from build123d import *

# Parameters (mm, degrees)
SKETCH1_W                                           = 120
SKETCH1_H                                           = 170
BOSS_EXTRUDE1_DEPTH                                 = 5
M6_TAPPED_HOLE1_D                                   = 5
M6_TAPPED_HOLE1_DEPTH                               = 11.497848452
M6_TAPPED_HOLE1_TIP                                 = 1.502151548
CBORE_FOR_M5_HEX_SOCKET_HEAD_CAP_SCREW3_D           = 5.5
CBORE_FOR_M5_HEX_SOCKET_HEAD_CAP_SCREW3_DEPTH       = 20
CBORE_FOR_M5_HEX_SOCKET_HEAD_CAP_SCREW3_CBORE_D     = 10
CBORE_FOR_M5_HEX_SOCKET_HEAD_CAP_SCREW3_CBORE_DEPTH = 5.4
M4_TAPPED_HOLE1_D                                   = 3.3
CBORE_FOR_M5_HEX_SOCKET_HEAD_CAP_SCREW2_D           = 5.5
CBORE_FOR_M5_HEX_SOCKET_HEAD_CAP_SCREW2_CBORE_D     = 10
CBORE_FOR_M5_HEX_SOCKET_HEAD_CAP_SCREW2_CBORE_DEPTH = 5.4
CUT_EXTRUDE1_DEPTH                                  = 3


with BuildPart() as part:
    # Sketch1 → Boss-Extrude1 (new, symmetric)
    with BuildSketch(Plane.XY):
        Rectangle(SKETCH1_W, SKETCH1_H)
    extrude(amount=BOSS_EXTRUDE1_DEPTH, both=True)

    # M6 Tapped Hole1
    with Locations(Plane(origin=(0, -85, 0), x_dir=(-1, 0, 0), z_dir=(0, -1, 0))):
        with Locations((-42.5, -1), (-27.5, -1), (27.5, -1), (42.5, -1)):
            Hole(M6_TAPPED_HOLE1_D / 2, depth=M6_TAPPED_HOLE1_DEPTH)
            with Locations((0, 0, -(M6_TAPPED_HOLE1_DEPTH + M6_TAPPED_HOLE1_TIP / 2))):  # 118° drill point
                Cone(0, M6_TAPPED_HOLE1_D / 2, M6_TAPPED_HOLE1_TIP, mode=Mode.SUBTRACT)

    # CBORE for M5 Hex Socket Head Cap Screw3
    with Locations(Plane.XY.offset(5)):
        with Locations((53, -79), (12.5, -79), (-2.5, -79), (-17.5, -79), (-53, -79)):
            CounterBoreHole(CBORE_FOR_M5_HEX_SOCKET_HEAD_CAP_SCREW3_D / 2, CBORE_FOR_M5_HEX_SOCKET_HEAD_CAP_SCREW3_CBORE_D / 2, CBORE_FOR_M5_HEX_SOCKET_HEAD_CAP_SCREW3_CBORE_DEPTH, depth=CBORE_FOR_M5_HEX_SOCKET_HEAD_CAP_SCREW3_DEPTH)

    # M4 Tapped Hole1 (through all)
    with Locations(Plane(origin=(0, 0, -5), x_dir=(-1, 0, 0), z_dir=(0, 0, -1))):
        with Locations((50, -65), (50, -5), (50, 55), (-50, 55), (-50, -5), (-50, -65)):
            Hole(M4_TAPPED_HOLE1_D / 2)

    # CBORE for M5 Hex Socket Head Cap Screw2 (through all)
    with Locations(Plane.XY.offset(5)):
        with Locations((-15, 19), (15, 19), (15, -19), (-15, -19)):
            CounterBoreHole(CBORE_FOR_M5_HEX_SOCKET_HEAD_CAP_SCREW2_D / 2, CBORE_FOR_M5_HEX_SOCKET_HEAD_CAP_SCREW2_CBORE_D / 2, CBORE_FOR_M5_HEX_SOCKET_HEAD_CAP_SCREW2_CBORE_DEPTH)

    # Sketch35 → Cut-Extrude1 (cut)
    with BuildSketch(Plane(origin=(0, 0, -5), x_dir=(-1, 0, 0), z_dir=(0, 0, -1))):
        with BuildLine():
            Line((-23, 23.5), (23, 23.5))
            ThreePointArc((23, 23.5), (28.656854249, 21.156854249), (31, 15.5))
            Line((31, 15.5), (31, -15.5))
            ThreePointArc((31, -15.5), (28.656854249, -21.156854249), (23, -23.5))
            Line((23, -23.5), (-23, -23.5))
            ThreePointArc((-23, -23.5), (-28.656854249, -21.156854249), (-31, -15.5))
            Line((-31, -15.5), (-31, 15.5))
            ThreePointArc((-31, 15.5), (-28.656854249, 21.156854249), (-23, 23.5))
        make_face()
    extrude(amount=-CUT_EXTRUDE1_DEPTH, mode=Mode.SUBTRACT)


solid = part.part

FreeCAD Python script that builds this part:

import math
import FreeCAD as App
import Part
import Sketcher
from FreeCAD import Vector
Q = App.Units.Quantity

doc = App.newDocument("Part")
body = doc.addObject("PartDesign::Body", "Body")

# Sketch on XY plane
sketch1 = body.newObject("Sketcher::SketchObject", "Sketch")
sketch1.AttachmentSupport = (doc.getObject("XY_Plane"), [""])
sketch1.MapMode = "FlatFace"
sketch1.addGeometry([
    Part.LineSegment(Vector(-60, 85, 0), Vector(-60, -85, 0)),
    Part.LineSegment(Vector(-60, -85, 0), Vector(60, -85, 0)),
    Part.LineSegment(Vector(60, -85, 0), Vector(60, 85, 0)),
    Part.LineSegment(Vector(60, 85, 0), Vector(-60, 85, 0)),
], False)
sketch1.addConstraint([
    Sketcher.Constraint("Coincident", 0, 2, 1, 1),
    Sketcher.Constraint("Coincident", 1, 2, 2, 1),
    Sketcher.Constraint("Coincident", 2, 2, 3, 1),
    Sketcher.Constraint("Coincident", 3, 2, 0, 1),
    Sketcher.Constraint("Vertical", 0),
    Sketcher.Constraint("Horizontal", 1),
    Sketcher.Constraint("Vertical", 2),
    Sketcher.Constraint("Horizontal", 3),
    Sketcher.Constraint("Symmetric", 0, 2, 2, 2, -1, 1),
    Sketcher.Constraint("DistanceX", 1, 1, 1, 2, Q("120 mm")),
    Sketcher.Constraint("DistanceY", 0, 2, 0, 1, Q("170 mm")),
])
pad1 = body.newObject("PartDesign::Pad", "Pad")
pad1.Profile = sketch1
pad1.Length = 10
pad1.Midplane = True

# Sketch on XZ plane
sketch2 = body.newObject("Sketcher::SketchObject", "Sketch001")
sketch2.AttachmentSupport = (doc.getObject("XZ_Plane"), [""])
sketch2.MapMode = "FlatFace"
sketch2.AttachmentOffset = App.Placement(Vector(0, 0, 85), App.Rotation())
sketch2.addGeometry([
    Part.Circle(Vector(42.5, 1, 0), Vector(0, 0, 1), 2.5),
    Part.Circle(Vector(27.5, 1, 0), Vector(0, 0, 1), 2.5),
    Part.Circle(Vector(-27.5, 1, 0), Vector(0, 0, 1), 2.5),
    Part.Circle(Vector(-42.5, 1, 0), Vector(0, 0, 1), 2.5),
], False)
sketch2.addConstraint([
    Sketcher.Constraint("Equal", 0, 1),
    Sketcher.Constraint("Equal", 1, 2),
    Sketcher.Constraint("Equal", 2, 3),
    Sketcher.Constraint("Symmetric", 1, 3, 2, 3, -2),
    Sketcher.Constraint("Symmetric", 0, 3, 3, 3, -2),
    Sketcher.Constraint("Horizontal", 0, 3, 1, 3),
    Sketcher.Constraint("Diameter", 0, Q("5 mm")),
    Sketcher.Constraint("DistanceY", -1, 1, 0, 3, Q("1 mm")),
    Sketcher.Constraint("DistanceX", 1, 3, 0, 3, Q("15 mm")),
    Sketcher.Constraint("DistanceX", 2, 3, 1, 3, Q("55 mm")),
])
doc.recompute()
hole = body.newObject("PartDesign::Hole", "Hole")
hole.Profile = sketch2
hole.ThreadType = "None"
hole.Diameter = 5
hole.DepthType = "Dimension"
hole.Depth = 11.497848
hole.DrillPoint = "Angled"
hole.DrillPointAngle = 118

# Sketch on XY plane
sketch3 = body.newObject("Sketcher::SketchObject", "Sketch002")
sketch3.AttachmentSupport = (doc.getObject("XY_Plane"), [""])
sketch3.MapMode = "FlatFace"
sketch3.AttachmentOffset = App.Placement(Vector(0, 0, 5), App.Rotation())
sketch3.addGeometry([
    Part.Circle(Vector(53, -79, 0), Vector(0, 0, 1), 2.8),  # 0
    Part.Circle(Vector(12.5, -79, 0), Vector(0, 0, 1), 2.8),  # 1
    Part.Circle(Vector(-2.5, -79, 0), Vector(0, 0, 1), 2.8),  # 2
    Part.Circle(Vector(-17.5, -79, 0), Vector(0, 0, 1), 2.8),  # 3
    Part.Circle(Vector(-53, -79, 0), Vector(0, 0, 1), 2.8),  # 4
], False)
sketch3.addConstraint([
    Sketcher.Constraint("Equal", 0, 1),
    Sketcher.Constraint("Equal", 1, 2),
    Sketcher.Constraint("Equal", 2, 3),
    Sketcher.Constraint("Equal", 3, 4),
    Sketcher.Constraint("Symmetric", 0, 3, 4, 3, -2),
    Sketcher.Constraint("Horizontal", 0, 3, 1, 3),
    Sketcher.Constraint("Horizontal", 1, 3, 2, 3),
    Sketcher.Constraint("Horizontal", 2, 3, 3, 3),
    Sketcher.Constraint("Diameter", 0, Q("5.5 mm")),
    Sketcher.Constraint("DistanceX", -1, 1, 0, 3, Q("53 mm")),
    Sketcher.Constraint("DistanceY", 0, 3, -1, 1, Q("79 mm")),
    Sketcher.Constraint("DistanceX", 2, 3, 1, 3, Q("15 mm")),
    Sketcher.Constraint("DistanceX", 3, 3, 2, 3, Q("15 mm")),
    Sketcher.Constraint("DistanceX", -1, 1, 1, 3, Q("12.5 mm")),
])
doc.recompute()
hole2 = body.newObject("PartDesign::Hole", "Hole001")
hole2.Profile = sketch3
hole2.ThreadType = "None"
hole2.Diameter = 5.5
hole2.DepthType = "Dimension"
hole2.Depth = 20
hole2.DrillPoint = "Flat"
hole2.HoleCutType = "Counterbore"
hole2.HoleCutDiameter = 10
hole2.HoleCutDepth = 5.4

# Sketch on XY plane
sketch4 = body.newObject("Sketcher::SketchObject", "Sketch003")
sketch4.AttachmentSupport = (doc.getObject("XY_Plane"), [""])
sketch4.MapMode = "FlatFace"
sketch4.AttachmentOffset = App.Placement(Vector(0, 0, -5), App.Rotation())
sketch4.addGeometry([
    Part.Circle(Vector(-50, -65, 0), Vector(0, 0, 1), 1.6),  # 0
    Part.Circle(Vector(-50, -5, 0), Vector(0, 0, 1), 1.6),  # 1
    Part.Circle(Vector(-50, 55, 0), Vector(0, 0, 1), 1.6),  # 2
    Part.Circle(Vector(50, 55, 0), Vector(0, 0, 1), 1.6),  # 3
    Part.Circle(Vector(50, -5, 0), Vector(0, 0, 1), 1.6),  # 4
    Part.Circle(Vector(50, -65, 0), Vector(0, 0, 1), 1.6),  # 5
], False)
sketch4.addConstraint([
    Sketcher.Constraint("Equal", 0, 1),
    Sketcher.Constraint("Equal", 1, 2),
    Sketcher.Constraint("Equal", 2, 3),
    Sketcher.Constraint("Equal", 3, 4),
    Sketcher.Constraint("Equal", 4, 5),
    Sketcher.Constraint("Symmetric", 2, 3, 3, 3, -2),
    Sketcher.Constraint("Symmetric", 1, 3, 4, 3, -2),
    Sketcher.Constraint("Symmetric", 0, 3, 5, 3, -2),
    Sketcher.Constraint("Vertical", 0, 3, 1, 3),
    Sketcher.Constraint("Vertical", 1, 3, 2, 3),
    Sketcher.Constraint("Diameter", 0, Q("3.3 mm")),
    Sketcher.Constraint("DistanceX", 0, 3, -1, 1, Q("50 mm")),
    Sketcher.Constraint("DistanceY", 0, 3, -1, 1, Q("65 mm")),
    Sketcher.Constraint("DistanceY", 1, 3, -1, 1, Q("5 mm")),
    Sketcher.Constraint("DistanceY", -1, 1, 2, 3, Q("55 mm")),
])
doc.recompute()
hole3 = body.newObject("PartDesign::Hole", "Hole002")
hole3.Profile = sketch4
hole3.ThreadType = "None"
hole3.Diameter = 3.3
hole3.DepthType = "ThroughAll"
hole3.Reversed = True

# Sketch on XY plane
sketch5 = body.newObject("Sketcher::SketchObject", "Sketch004")
sketch5.AttachmentSupport = (doc.getObject("XY_Plane"), [""])
sketch5.MapMode = "FlatFace"
sketch5.AttachmentOffset = App.Placement(Vector(0, 0, 5), App.Rotation())
sketch5.addGeometry([
    Part.Circle(Vector(-15, 19, 0), Vector(0, 0, 1), 2.8),
    Part.Circle(Vector(15, 19, 0), Vector(0, 0, 1), 2.8),
    Part.Circle(Vector(15, -19, 0), Vector(0, 0, 1), 2.8),
    Part.Circle(Vector(-15, -19, 0), Vector(0, 0, 1), 2.8),
], False)
sketch5.addConstraint([
    Sketcher.Constraint("Equal", 0, 1),
    Sketcher.Constraint("Equal", 1, 2),
    Sketcher.Constraint("Equal", 2, 3),
    Sketcher.Constraint("Symmetric", 0, 3, 2, 3, -1, 1),
    Sketcher.Constraint("Symmetric", 1, 3, 3, 3, -1, 1),
    Sketcher.Constraint("Symmetric", 0, 3, 1, 3, -2),
    Sketcher.Constraint("Diameter", 0, Q("5.5 mm")),
    Sketcher.Constraint("DistanceX", 0, 3, -1, 1, Q("15 mm")),
    Sketcher.Constraint("DistanceY", -1, 1, 0, 3, Q("19 mm")),
])
doc.recompute()
hole4 = body.newObject("PartDesign::Hole", "Hole003")
hole4.Profile = sketch5
hole4.ThreadType = "None"
hole4.Diameter = 5.5
hole4.DepthType = "ThroughAll"
hole4.HoleCutType = "Counterbore"
hole4.HoleCutDiameter = 10
hole4.HoleCutDepth = 5.4

# Sketch on XY plane
sketch6 = body.newObject("Sketcher::SketchObject", "Sketch005")
sketch6.AttachmentSupport = (doc.getObject("XY_Plane"), [""])
sketch6.MapMode = "FlatFace"
sketch6.AttachmentOffset = App.Placement(Vector(0, 0, -5), App.Rotation())
sketch6.addGeometry([
    Part.LineSegment(Vector(-23, 24, 0), Vector(23, 24, 0)),  # 0
    Part.ArcOfCircle(Part.Circle(Vector(23, 15, 0), Vector(0, 0, 1), 8), math.radians(0), math.radians(90)),  # 1
    Part.LineSegment(Vector(31, 16, 0), Vector(31, -16, 0)),  # 2
    Part.ArcOfCircle(Part.Circle(Vector(23, -15, 0), Vector(0, 0, 1), 8), math.radians(-90), math.radians(0)),  # 3
    Part.LineSegment(Vector(23, -24, 0), Vector(-23, -24, 0)),  # 4
    Part.ArcOfCircle(Part.Circle(Vector(-23, -15, 0), Vector(0, 0, 1), 8), math.radians(-180), math.radians(-90)),  # 5
    Part.LineSegment(Vector(-31, -16, 0), Vector(-31, 16, 0)),  # 6
    Part.ArcOfCircle(Part.Circle(Vector(-23, 15, 0), Vector(0, 0, 1), 8), math.radians(90), math.radians(180)),  # 7
], False)
sketch6.addConstraint([
    Sketcher.Constraint("Tangent", 0, 2, 1, 2),
    Sketcher.Constraint("Tangent", 1, 1, 2, 1),
    Sketcher.Constraint("Tangent", 2, 2, 3, 2),
    Sketcher.Constraint("Tangent", 3, 1, 4, 1),
    Sketcher.Constraint("Tangent", 4, 2, 5, 2),
    Sketcher.Constraint("Tangent", 5, 1, 6, 1),
    Sketcher.Constraint("Tangent", 6, 2, 7, 2),
    Sketcher.Constraint("Tangent", 7, 1, 0, 1),
    Sketcher.Constraint("Horizontal", 0),
    Sketcher.Constraint("Vertical", 2),
    Sketcher.Constraint("Horizontal", 4),
    Sketcher.Constraint("Vertical", 6),
    Sketcher.Constraint("Equal", 1, 3),
    Sketcher.Constraint("Equal", 3, 5),
    Sketcher.Constraint("Equal", 5, 7),
    Sketcher.Constraint("Symmetric", 1, 3, 5, 3, -1, 1),
    Sketcher.Constraint("Radius", 1, Q("8 mm")),
    Sketcher.Constraint("DistanceX", 0, 1, 0, 2, Q("46 mm")),
    Sketcher.Constraint("DistanceY", 2, 2, 2, 1, Q("31 mm")),
])
pocket1 = body.newObject("PartDesign::Pocket", "Pocket")
pocket1.Profile = sketch6
pocket1.Length = 3
pocket1.Reversed = True

doc.recompute()
